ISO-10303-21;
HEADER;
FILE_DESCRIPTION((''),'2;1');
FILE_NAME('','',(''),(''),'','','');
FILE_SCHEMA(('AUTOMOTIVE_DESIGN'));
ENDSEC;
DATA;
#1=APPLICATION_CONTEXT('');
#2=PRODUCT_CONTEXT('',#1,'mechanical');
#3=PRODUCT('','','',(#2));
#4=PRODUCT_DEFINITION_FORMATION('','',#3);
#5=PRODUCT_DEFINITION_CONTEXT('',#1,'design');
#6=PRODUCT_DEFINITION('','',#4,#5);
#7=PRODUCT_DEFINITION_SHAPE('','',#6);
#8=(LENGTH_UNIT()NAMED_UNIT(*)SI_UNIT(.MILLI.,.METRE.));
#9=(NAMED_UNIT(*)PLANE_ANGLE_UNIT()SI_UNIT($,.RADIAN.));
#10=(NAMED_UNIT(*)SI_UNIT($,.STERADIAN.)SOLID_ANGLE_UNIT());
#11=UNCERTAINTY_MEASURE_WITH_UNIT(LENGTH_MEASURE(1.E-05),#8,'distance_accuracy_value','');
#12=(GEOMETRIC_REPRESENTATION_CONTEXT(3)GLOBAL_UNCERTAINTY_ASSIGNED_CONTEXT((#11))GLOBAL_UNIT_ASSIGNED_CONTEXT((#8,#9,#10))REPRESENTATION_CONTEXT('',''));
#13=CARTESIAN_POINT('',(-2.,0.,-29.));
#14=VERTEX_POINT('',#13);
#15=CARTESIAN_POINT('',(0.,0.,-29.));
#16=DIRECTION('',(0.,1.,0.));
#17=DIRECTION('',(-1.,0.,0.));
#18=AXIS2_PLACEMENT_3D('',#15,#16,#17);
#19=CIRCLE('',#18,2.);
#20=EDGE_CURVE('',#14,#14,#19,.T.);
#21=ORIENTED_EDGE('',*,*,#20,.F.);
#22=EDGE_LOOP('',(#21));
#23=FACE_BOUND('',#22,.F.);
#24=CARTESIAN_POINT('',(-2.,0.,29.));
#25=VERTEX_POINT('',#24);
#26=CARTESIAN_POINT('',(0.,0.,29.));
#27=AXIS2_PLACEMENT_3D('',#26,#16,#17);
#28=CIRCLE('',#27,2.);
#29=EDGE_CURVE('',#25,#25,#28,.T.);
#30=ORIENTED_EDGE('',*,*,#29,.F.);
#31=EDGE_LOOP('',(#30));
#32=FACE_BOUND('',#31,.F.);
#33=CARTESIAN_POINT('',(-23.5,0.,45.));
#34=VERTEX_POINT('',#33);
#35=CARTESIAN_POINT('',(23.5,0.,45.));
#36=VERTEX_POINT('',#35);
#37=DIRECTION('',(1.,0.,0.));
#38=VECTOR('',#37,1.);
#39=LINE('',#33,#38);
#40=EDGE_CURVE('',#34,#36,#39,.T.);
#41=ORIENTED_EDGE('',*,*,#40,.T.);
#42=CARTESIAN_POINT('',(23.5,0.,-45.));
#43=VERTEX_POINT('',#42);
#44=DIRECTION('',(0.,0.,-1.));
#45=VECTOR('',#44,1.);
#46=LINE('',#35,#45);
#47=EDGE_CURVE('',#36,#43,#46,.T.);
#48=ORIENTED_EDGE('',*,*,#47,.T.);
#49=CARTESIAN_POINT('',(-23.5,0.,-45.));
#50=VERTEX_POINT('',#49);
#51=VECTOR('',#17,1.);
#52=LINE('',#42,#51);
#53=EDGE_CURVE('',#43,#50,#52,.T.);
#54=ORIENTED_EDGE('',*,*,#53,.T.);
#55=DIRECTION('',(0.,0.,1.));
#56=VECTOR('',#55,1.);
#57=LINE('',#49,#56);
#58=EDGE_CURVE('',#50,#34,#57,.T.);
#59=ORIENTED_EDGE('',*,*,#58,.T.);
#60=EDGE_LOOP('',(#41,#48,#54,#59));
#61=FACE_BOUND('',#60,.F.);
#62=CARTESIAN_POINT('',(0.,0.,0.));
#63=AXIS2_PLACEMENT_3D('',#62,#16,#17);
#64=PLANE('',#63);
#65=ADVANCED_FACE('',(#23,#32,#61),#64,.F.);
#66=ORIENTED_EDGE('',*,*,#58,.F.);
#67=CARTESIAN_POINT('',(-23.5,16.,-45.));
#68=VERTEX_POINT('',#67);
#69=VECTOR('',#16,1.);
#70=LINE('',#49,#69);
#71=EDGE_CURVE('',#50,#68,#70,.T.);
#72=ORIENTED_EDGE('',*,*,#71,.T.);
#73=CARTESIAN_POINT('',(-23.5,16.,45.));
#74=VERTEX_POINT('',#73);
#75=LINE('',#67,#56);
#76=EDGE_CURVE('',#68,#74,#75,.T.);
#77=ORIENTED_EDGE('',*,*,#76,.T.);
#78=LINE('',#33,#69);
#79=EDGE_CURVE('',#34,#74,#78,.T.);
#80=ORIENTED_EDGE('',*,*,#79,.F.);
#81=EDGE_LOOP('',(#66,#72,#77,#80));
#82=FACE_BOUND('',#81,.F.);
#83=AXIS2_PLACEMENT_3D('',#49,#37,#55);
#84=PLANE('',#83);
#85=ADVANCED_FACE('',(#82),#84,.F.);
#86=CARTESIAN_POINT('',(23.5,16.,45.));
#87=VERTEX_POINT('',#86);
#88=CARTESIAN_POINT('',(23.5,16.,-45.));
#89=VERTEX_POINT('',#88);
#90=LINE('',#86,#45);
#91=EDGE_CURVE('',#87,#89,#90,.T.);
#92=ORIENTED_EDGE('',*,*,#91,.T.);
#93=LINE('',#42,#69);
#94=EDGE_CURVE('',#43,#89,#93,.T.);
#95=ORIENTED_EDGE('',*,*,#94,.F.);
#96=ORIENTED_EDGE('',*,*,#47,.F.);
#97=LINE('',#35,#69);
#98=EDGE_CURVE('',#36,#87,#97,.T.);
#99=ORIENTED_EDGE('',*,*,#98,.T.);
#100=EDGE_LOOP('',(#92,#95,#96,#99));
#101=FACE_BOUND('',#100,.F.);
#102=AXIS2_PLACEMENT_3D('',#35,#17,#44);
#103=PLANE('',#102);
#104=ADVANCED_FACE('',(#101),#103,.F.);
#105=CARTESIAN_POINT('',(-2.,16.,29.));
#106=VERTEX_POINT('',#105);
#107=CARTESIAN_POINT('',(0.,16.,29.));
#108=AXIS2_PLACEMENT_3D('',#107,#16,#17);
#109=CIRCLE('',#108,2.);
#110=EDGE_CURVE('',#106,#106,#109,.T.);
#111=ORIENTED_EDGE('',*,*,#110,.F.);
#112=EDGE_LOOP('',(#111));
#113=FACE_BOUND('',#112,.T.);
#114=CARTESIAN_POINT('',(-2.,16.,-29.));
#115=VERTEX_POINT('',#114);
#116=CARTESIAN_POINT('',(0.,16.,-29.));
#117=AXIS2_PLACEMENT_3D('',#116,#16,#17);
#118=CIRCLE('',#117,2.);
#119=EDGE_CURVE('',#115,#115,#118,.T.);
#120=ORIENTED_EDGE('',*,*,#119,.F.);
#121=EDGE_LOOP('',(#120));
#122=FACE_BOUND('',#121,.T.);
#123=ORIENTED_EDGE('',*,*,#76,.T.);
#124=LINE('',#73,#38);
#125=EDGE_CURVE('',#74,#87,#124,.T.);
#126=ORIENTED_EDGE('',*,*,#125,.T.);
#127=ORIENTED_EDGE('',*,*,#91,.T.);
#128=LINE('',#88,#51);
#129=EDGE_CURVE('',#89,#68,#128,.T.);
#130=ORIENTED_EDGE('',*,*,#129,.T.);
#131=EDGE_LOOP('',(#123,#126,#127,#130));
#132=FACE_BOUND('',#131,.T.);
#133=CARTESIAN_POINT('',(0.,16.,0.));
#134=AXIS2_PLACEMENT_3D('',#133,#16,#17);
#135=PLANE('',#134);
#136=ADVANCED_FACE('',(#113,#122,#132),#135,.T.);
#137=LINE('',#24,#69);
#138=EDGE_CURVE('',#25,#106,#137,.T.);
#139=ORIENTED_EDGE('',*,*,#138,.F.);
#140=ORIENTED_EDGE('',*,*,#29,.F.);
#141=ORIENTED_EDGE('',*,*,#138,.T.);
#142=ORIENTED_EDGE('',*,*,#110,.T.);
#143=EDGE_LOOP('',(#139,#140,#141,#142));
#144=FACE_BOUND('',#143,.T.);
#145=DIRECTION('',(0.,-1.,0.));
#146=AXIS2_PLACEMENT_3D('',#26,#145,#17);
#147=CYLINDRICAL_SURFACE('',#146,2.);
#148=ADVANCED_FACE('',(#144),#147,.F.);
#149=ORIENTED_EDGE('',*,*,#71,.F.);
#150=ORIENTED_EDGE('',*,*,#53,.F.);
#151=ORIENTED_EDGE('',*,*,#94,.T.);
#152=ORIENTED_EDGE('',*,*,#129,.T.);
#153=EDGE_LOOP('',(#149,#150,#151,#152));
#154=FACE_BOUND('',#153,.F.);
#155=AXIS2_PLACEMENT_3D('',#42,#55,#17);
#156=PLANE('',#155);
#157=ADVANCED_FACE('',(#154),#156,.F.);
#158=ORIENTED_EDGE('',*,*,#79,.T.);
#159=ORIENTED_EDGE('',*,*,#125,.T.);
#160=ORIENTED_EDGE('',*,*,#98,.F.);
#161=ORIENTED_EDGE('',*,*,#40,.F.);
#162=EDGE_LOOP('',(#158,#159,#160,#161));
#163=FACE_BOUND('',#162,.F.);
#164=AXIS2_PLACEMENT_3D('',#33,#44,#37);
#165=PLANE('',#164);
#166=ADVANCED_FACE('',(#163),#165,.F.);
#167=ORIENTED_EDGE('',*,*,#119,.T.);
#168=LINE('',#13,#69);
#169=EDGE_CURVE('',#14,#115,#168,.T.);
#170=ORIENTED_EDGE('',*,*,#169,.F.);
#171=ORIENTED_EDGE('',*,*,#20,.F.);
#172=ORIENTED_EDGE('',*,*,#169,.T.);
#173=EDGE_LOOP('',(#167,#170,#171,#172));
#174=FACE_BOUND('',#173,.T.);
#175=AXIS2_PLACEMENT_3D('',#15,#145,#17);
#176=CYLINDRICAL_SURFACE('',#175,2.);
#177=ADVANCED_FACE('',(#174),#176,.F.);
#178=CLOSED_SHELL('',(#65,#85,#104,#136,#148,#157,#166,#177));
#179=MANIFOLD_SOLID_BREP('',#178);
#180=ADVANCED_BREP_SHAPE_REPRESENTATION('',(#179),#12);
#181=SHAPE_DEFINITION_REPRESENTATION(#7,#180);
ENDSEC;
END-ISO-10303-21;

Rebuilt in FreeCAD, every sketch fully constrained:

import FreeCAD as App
import Part
import Sketcher

V = App.Vector

doc = App.newDocument("Part")
body = doc.addObject("PartDesign::Body", "Body")

sketch1 = doc.addObject("Sketcher::SketchObject", "Sketch")
body.addObject(sketch1)
sketch1.AttachmentSupport = (doc.XZ_Plane, [""])
sketch1.MapMode = "FlatFace"
sketch1.addGeometry(Part.LineSegment(V(-23.5, -45, 0), V(-23.5, 45, 0)), False)
sketch1.addGeometry(Part.LineSegment(V(-23.5, 45, 0), V(23.5, 45, 0)), False)
sketch1.addGeometry(Part.LineSegment(V(23.5, 45, 0), V(23.5, -45, 0)), False)
sketch1.addGeometry(Part.LineSegment(V(23.5, -45, 0), V(-23.5, -45, 0)), False)
sketch1.addGeometry(Part.Circle(V(0, -29, 0), V(0, 0, 1), 2), False)
sketch1.addGeometry(Part.Circle(V(0, 29, 0), V(0, 0, 1), 2), False)
sketch1.addConstraint(Sketcher.Constraint("Coincident", 0, 2, 1, 1))
sketch1.addConstraint(Sketcher.Constraint("Coincident", 1, 2, 2, 1))
sketch1.addConstraint(Sketcher.Constraint("Coincident", 2, 2, 3, 1))
sketch1.addConstraint(Sketcher.Constraint("Coincident", 3, 2, 0, 1))
sketch1.addConstraint(Sketcher.Constraint("Vertical", 0))
sketch1.addConstraint(Sketcher.Constraint("Horizontal", 1))
sketch1.addConstraint(Sketcher.Constraint("Vertical", 2))
sketch1.addConstraint(Sketcher.Constraint("Horizontal", 3))
sketch1.addConstraint(Sketcher.Constraint("Equal", 4, 5))
sketch1.addConstraint(Sketcher.Constraint("Symmetric", 4, 3, 5, 3, -1, 1))
sketch1.addConstraint(Sketcher.Constraint("Symmetric", 0, 2, 2, 2, -1, 1))
sketch1.addConstraint(Sketcher.Constraint("PointOnObject", 4, 3, -2))
sketch1.addConstraint(Sketcher.Constraint("Diameter", 4, 4.0))
sketch1.addConstraint(Sketcher.Constraint("DistanceX", 1, 1, 1, 2, 47.0))
sketch1.addConstraint(Sketcher.Constraint("DistanceY", 0, 1, 0, 2, 90.0))
sketch1.addConstraint(Sketcher.Constraint("DistanceY", 5, 3, 0, 2, 16.0))
pad1 = doc.addObject("PartDesign::Pad", "Pad")
body.addObject(pad1)
pad1.Profile = sketch1
pad1.Length = 16
pad1.Reversed = True

doc.recompute()
